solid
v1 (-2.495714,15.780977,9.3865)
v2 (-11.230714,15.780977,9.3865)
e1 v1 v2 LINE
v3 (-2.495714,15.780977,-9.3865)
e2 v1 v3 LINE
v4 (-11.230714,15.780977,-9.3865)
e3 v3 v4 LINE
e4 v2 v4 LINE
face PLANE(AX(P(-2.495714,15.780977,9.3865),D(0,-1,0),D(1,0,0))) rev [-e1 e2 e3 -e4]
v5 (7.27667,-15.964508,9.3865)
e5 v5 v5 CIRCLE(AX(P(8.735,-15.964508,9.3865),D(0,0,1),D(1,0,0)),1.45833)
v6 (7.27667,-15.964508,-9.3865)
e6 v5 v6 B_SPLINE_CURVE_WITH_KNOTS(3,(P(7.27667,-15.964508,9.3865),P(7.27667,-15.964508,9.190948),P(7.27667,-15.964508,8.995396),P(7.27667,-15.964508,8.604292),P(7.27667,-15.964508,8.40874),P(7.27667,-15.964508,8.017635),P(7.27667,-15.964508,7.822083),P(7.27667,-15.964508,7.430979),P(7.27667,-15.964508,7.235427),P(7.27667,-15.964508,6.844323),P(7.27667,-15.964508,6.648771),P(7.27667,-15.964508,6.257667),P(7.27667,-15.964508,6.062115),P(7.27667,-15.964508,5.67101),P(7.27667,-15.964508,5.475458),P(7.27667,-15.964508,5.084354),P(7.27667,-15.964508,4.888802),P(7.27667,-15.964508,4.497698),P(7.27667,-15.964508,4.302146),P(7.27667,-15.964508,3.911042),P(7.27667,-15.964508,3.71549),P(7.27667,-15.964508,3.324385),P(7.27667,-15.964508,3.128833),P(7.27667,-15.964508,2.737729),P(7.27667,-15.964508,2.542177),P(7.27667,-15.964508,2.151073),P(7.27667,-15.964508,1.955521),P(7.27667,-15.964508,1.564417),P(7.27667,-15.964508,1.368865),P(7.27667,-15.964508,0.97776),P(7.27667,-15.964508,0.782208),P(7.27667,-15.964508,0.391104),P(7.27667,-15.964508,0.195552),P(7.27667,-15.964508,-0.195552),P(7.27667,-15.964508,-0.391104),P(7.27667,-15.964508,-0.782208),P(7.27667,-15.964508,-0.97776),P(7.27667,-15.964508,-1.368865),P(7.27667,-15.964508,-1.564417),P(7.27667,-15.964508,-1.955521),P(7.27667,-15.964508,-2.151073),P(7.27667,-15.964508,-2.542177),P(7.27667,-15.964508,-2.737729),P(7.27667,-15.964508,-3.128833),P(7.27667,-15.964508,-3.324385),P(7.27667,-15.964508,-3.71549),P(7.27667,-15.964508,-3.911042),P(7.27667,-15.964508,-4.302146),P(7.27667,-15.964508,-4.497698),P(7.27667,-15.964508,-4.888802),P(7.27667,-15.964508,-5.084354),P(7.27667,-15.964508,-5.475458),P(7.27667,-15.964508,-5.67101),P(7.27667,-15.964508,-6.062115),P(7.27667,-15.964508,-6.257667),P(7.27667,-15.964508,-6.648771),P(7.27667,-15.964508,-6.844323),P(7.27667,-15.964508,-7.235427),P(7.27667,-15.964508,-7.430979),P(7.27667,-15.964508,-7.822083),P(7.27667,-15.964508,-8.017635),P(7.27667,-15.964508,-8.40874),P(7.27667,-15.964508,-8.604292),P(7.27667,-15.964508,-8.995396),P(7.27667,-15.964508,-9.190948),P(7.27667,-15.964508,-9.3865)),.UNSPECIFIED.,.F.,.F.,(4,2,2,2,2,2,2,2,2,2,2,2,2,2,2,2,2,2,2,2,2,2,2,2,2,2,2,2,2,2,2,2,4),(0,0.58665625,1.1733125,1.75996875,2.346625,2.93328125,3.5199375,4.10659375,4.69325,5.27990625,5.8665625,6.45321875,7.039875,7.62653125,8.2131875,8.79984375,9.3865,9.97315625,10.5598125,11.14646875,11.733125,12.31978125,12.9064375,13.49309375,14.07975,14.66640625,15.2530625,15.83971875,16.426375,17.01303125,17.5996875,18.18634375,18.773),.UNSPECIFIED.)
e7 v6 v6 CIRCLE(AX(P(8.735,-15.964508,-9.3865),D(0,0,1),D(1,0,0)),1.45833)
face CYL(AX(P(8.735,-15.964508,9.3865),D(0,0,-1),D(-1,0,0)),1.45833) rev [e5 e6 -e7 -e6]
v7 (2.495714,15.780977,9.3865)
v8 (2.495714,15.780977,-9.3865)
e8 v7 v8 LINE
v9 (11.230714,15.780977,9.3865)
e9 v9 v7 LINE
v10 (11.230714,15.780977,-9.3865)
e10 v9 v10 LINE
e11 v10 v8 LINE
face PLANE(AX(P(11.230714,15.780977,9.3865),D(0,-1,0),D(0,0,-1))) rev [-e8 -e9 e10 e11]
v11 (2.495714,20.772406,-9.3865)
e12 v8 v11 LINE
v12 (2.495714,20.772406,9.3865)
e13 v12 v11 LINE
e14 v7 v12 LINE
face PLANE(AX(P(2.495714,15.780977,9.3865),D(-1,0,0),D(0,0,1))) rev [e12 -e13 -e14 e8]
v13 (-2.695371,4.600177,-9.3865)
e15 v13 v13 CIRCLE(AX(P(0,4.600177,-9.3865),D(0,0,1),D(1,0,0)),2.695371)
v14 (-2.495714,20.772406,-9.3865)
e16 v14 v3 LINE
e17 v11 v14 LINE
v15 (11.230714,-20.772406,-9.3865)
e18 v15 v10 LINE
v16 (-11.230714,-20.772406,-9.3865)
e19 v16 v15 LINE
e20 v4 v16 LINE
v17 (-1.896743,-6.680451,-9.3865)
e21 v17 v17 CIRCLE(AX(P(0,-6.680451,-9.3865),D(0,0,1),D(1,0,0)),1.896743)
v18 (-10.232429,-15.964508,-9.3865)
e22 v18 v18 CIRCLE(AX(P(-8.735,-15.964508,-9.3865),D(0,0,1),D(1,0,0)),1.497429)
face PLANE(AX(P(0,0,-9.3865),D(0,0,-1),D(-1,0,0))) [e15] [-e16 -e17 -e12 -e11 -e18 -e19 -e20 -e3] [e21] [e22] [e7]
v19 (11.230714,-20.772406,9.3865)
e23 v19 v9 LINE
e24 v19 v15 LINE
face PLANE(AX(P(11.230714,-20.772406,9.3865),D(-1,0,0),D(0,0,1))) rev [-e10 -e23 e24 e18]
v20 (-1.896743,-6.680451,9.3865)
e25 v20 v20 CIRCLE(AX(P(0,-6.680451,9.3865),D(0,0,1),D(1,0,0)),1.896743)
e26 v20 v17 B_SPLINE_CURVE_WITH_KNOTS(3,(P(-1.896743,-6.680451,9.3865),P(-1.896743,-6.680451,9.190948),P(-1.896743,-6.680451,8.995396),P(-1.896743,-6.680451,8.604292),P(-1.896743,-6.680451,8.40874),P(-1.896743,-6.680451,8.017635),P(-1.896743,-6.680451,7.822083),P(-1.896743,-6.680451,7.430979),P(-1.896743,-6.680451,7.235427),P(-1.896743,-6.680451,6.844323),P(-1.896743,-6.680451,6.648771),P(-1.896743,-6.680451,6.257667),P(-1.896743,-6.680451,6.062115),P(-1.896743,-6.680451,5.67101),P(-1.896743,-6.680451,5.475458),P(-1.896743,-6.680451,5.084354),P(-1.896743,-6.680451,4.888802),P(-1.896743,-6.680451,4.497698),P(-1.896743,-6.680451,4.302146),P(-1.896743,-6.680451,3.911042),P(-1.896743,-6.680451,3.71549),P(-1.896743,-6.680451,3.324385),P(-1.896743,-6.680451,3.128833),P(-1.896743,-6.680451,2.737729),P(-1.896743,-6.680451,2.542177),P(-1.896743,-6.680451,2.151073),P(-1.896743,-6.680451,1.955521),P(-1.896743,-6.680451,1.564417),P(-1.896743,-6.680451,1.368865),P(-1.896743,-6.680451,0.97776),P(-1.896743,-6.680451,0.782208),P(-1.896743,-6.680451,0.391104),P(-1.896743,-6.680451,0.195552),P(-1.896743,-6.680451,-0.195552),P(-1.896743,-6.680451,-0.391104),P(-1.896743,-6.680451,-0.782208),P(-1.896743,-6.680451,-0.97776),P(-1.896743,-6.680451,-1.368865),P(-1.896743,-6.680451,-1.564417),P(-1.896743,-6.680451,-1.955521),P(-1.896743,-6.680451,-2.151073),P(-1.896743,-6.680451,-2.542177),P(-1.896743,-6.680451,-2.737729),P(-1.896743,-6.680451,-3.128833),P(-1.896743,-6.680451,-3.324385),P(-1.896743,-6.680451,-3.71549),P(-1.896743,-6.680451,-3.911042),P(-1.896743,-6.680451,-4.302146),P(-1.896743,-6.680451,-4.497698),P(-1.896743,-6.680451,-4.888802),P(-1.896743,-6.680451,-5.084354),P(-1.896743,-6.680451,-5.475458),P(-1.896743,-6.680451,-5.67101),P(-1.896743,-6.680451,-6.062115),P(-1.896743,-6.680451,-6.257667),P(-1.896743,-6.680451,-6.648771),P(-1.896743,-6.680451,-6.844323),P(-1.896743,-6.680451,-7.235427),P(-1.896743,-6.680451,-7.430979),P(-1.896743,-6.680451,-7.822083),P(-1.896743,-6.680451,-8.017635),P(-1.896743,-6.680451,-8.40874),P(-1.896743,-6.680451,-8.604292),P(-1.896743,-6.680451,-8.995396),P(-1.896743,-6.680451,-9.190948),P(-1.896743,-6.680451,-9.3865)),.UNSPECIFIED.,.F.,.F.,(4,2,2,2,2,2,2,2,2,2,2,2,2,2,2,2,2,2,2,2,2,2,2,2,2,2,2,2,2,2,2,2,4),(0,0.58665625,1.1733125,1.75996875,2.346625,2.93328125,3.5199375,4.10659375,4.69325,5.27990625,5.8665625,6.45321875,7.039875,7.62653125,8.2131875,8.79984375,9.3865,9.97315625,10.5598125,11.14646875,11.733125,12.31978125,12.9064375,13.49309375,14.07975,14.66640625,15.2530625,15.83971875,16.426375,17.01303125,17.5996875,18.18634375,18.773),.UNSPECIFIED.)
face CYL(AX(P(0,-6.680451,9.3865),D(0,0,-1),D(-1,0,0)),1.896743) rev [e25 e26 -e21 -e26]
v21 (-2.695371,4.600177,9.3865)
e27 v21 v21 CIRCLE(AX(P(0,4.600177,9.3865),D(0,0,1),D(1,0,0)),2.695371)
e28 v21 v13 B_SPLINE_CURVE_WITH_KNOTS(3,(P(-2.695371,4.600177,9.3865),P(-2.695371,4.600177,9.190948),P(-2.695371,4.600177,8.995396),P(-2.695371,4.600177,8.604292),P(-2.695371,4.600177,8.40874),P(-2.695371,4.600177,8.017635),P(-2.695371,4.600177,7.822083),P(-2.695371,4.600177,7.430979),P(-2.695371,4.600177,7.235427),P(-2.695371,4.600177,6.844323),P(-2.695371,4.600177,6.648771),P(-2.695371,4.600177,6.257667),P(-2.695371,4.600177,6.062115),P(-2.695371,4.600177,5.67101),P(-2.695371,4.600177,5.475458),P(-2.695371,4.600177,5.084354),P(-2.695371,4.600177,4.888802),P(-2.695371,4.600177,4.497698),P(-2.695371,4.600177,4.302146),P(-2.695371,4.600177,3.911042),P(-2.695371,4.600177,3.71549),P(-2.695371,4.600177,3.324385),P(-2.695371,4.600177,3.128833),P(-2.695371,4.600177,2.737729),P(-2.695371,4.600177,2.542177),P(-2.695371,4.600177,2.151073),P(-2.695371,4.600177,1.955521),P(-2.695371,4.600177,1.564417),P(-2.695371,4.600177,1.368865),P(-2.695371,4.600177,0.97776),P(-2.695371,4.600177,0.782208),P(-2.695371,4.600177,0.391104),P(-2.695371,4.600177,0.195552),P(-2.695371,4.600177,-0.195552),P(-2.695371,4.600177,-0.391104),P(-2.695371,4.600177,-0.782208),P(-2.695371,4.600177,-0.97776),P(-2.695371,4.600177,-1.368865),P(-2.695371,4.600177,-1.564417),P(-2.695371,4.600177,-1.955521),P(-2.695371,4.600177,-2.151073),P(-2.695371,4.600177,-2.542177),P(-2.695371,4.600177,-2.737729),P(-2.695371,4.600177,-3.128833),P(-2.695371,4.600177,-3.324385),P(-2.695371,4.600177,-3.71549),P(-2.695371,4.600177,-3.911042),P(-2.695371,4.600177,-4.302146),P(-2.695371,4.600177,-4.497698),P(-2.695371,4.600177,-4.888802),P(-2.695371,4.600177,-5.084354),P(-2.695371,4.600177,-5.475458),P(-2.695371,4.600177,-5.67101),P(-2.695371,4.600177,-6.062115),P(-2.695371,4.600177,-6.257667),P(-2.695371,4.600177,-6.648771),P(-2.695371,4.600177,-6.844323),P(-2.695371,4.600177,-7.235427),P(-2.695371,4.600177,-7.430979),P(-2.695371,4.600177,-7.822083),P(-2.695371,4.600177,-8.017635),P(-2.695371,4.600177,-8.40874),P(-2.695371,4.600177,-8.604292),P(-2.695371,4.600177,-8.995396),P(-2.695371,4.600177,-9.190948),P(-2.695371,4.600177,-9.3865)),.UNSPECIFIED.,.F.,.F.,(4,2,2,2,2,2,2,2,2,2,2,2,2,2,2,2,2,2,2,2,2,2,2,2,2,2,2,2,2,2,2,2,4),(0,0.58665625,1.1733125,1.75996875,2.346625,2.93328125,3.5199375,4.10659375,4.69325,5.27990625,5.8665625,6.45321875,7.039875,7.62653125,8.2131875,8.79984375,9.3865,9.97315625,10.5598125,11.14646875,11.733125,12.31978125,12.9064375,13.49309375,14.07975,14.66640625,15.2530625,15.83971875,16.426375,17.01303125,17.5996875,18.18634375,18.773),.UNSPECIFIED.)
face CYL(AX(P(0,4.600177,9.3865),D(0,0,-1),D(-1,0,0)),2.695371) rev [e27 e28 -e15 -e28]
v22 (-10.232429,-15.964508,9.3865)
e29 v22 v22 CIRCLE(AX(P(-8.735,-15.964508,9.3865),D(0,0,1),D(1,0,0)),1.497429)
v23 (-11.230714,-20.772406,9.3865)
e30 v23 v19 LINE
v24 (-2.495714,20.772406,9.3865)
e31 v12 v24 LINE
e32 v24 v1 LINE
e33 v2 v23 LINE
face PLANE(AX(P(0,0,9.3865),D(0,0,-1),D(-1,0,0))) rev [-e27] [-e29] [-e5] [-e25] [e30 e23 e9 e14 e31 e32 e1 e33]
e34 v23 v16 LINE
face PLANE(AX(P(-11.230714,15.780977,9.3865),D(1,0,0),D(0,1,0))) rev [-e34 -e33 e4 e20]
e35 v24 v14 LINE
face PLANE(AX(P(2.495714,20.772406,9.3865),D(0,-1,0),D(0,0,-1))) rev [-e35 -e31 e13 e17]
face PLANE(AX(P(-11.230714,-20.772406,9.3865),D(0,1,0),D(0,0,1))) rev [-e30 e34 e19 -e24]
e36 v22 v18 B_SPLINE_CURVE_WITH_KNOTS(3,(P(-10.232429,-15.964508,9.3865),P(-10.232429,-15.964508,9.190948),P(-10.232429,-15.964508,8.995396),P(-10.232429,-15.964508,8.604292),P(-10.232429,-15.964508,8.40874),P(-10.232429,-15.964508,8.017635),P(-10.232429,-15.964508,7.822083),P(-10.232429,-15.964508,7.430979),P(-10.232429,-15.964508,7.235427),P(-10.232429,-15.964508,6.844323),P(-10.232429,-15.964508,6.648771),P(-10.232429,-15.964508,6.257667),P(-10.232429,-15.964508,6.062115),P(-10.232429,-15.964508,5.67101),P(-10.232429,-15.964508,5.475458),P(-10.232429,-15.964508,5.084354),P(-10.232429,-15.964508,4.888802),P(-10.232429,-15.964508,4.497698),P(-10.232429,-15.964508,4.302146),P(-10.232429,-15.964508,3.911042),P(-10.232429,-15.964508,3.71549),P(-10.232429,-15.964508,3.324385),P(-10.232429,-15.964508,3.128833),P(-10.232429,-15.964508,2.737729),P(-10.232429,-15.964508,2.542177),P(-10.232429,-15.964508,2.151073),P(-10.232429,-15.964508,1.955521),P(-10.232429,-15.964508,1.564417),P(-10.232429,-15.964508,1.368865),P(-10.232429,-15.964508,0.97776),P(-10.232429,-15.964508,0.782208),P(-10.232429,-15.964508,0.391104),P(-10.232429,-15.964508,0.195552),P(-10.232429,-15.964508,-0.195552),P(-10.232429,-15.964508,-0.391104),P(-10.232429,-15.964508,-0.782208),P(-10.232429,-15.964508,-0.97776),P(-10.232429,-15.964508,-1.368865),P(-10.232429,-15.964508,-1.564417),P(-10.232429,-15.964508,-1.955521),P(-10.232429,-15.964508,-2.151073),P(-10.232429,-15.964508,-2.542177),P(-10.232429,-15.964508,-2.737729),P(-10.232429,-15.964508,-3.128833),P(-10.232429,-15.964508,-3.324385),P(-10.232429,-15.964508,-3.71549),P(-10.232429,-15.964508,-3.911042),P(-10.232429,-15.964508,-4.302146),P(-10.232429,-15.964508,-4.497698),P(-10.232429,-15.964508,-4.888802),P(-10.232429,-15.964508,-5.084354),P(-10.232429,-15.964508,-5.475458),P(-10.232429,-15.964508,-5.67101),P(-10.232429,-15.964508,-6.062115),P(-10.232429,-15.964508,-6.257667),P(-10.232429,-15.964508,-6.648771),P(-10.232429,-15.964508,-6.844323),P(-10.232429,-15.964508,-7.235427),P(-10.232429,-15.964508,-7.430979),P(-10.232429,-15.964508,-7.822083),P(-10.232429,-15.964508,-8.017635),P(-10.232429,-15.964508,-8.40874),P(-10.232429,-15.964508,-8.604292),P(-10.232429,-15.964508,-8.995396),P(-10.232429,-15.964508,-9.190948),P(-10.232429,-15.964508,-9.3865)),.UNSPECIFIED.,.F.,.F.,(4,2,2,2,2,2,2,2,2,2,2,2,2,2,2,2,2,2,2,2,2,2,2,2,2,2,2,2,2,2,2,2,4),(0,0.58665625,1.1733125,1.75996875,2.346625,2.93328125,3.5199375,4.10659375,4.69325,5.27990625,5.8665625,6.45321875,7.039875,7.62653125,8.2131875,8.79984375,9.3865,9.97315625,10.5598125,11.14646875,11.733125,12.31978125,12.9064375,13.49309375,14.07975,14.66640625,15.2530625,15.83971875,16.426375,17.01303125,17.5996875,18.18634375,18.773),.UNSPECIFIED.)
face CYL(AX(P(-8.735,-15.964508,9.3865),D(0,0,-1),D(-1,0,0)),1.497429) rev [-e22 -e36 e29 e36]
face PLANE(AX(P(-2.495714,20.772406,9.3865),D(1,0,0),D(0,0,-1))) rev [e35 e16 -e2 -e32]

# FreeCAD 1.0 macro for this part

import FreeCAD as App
import Part
import Sketcher
from FreeCAD import Vector


def add_polygon(sketch, points):
    """Adds a closed chain of lines whose ends are joined by coincident constraints."""
    first, n = sketch.GeometryCount, len(points)
    for a, b in zip(points, points[1:] + points[:1]):
        sketch.addGeometry(Part.LineSegment(App.Vector(*a, 0), App.Vector(*b, 0)), False)
    for i in range(n):
        sketch.addConstraint(Sketcher.Constraint("Coincident", first + i, 2, first + (i + 1) % n, 1))

doc = App.newDocument("Part")
body = doc.addObject("PartDesign::Body", "Body")

# Sketch on XY plane
sketch1 = body.newObject("Sketcher::SketchObject", "Sketch")
sketch1.AttachmentSupport = (doc.getObject("XY_Plane"), [""])
sketch1.MapMode = "FlatFace"
add_polygon(sketch1, [(-2.5, 15.8), (-11.2, 15.8), (-11.2, -20.8), (11.2, -20.8), (11.2, 15.8), (2.5, 15.8), (2.5, 20.8), (-2.5, 20.8)])  # lines 0-7
sketch1.addGeometry(Part.Circle(Vector(-8.7, -16, 0), Vector(0, 0, 1), 1.5), False)  # 8
sketch1.addGeometry(Part.Circle(Vector(8.7, -16, 0), Vector(0, 0, 1), 1.5), False)  # 9
sketch1.addGeometry(Part.Circle(Vector(0, -6.7, 0), Vector(0, 0, 1), 1.9), False)  # 10
sketch1.addGeometry(Part.Circle(Vector(0, 4.6, 0), Vector(0, 0, 1), 2.7), False)  # 11
sketch1.addConstraint([
    Sketcher.Constraint("Horizontal", 0),
    Sketcher.Constraint("Vertical", 1),
    Sketcher.Constraint("Horizontal", 2),
    Sketcher.Constraint("Vertical", 3),
    Sketcher.Constraint("Horizontal", 4),
    Sketcher.Constraint("Vertical", 5),
    Sketcher.Constraint("Horizontal", 6),
    Sketcher.Constraint("Vertical", 7),
    Sketcher.Constraint("Symmetric", 8, 3, 9, 3, -2),
    Sketcher.Constraint("Symmetric", 0, 2, 3, 2, -2),
    Sketcher.Constraint("PointOnObject", 10, 3, -2),
    Sketcher.Constraint("PointOnObject", 11, 3, -2),
    Sketcher.Constraint("Equal", 0, 4),
    Sketcher.Constraint("Equal", 6, 5),
    Sketcher.Constraint("Diameter", 9, 2.916661),
    Sketcher.Constraint("DistanceX", 0, 2, 0, 1, 8.735),
    Sketcher.Constraint("DistanceX", 8, 3, 9, 3, 17.47),
    Sketcher.Constraint("Diameter", 8, 2.994857),
    Sketcher.Constraint("Diameter", 10, 3.793486),
    Sketcher.Constraint("Diameter", 11, 5.390743),
    Sketcher.Constraint("DistanceX", 2, 1, 2, 2, 22.461429),
    Sketcher.Constraint("DistanceY", 11, 3, 0, 2, 11.1808),
    Sketcher.Constraint("DistanceY", 1, 2, 1, 1, 36.553383),
    Sketcher.Constraint("DistanceY", 8, 3, -1, 1, 15.964508),
    Sketcher.Constraint("DistanceY", 10, 3, -1, 1, 6.680451),
    Sketcher.Constraint("DistanceY", 10, 3, 11, 3, 11.280629),
])
pad1 = body.newObject("PartDesign::Pad", "Pad")
pad1.Profile = sketch1
pad1.Length = 18.773
pad1.Midplane = True

doc.recompute()
